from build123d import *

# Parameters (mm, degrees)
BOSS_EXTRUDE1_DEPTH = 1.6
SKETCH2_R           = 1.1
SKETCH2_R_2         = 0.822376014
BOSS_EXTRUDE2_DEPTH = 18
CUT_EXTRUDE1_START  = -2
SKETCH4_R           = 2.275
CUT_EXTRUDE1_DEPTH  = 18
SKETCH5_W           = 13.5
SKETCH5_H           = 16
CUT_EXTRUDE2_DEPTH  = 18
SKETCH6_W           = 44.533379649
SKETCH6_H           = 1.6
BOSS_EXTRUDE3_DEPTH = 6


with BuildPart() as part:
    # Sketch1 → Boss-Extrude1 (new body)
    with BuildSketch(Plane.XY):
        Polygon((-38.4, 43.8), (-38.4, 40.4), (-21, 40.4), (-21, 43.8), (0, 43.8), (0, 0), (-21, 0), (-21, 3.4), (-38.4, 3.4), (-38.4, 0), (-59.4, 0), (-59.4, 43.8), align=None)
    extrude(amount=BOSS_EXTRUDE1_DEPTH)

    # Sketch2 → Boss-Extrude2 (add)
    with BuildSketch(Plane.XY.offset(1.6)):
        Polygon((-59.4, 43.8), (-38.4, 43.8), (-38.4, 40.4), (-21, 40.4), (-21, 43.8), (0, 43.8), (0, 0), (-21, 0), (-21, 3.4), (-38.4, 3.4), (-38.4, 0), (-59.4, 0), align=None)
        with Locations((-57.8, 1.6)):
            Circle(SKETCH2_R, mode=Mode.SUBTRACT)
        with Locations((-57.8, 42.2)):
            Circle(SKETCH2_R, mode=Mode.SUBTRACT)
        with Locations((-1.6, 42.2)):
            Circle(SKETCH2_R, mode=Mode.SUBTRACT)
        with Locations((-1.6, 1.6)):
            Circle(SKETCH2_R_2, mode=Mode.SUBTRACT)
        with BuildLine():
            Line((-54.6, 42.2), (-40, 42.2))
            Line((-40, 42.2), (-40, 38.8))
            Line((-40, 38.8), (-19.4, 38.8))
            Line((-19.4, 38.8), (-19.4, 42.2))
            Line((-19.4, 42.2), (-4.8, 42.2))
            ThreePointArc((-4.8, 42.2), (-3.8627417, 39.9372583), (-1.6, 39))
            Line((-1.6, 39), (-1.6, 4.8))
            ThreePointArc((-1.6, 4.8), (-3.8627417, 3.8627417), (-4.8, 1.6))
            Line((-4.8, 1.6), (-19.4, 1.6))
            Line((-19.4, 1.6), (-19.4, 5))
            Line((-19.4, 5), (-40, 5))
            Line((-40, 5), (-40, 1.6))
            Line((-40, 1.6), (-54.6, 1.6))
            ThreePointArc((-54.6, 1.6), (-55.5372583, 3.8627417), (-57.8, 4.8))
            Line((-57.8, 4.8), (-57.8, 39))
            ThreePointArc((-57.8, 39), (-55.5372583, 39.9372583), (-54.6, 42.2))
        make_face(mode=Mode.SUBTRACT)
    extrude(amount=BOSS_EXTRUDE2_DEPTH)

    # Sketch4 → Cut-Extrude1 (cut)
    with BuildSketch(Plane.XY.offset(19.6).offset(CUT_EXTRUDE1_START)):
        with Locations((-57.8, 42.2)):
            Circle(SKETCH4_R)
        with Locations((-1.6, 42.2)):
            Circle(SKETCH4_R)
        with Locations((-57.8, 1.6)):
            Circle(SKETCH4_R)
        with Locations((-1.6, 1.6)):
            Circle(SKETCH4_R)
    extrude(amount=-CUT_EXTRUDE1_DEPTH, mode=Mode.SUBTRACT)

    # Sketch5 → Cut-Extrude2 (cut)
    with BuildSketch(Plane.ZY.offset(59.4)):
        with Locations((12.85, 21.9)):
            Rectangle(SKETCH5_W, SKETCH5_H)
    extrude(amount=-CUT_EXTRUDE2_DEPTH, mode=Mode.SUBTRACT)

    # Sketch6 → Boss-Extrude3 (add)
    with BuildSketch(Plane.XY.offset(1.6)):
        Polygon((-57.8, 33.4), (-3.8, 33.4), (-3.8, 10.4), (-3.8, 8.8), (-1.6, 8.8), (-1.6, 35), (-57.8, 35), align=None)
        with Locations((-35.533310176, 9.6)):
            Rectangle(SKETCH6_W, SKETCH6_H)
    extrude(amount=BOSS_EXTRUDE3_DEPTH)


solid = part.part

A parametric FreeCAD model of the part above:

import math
import FreeCAD as App
import Part
import Sketcher
from FreeCAD import Vector


def add_polygon(sketch, points):
    """Adds a closed chain of lines whose ends are joined by coincident constraints."""
    first, n = sketch.GeometryCount, len(points)
    for a, b in zip(points, points[1:] + points[:1]):
        sketch.addGeometry(Part.LineSegment(App.Vector(*a, 0), App.Vector(*b, 0)), False)
    for i in range(n):
        sketch.addConstraint(Sketcher.Constraint("Coincident", first + i, 2, first + (i + 1) % n, 1))

doc = App.newDocument("Part")
body = doc.addObject("PartDesign::Body", "Body")

# Sketch on XY plane
sketch1 = doc.addObject("Sketcher::SketchObject", "Sketch")
body.addObject(sketch1)
sketch1.AttachmentSupport = (doc.XY_Plane, [""])
sketch1.MapMode = "FlatFace"
add_polygon(sketch1, [(-38.4, 40.4), (-38.4, 43.8), (-59.4, 43.8), (-59.4, 0), (-38.4, 0), (-38.4, 3.4), (-21, 3.4), (-21, 0), (0, 0), (0, 43.8), (-21, 43.8), (-21, 40.4)])  # lines 0-11
sketch1.addConstraint([
    Sketcher.Constraint("Vertical", 0),
    Sketcher.Constraint("Horizontal", 1),
    Sketcher.Constraint("Vertical", 2),
    Sketcher.Constraint("Horizontal", 3),
    Sketcher.Constraint("Vertical", 4),
    Sketcher.Constraint("Horizontal", 5),
    Sketcher.Constraint("Vertical", 6),
    Sketcher.Constraint("Horizontal", 7),
    Sketcher.Constraint("Vertical", 8),
    Sketcher.Constraint("Horizontal", 9),
    Sketcher.Constraint("Vertical", 10),
    Sketcher.Constraint("Horizontal", 11),
    Sketcher.Constraint("Coincident", 7, 2, -1, 1),
    Sketcher.Constraint("PointOnObject", 2, 2, -1),
    Sketcher.Constraint("Horizontal", 1, 2, 8, 2),
    Sketcher.Constraint("Vertical", 0, 2, 3, 2),
    Sketcher.Constraint("Vertical", 6, 2, 9, 2),
    Sketcher.Constraint("Equal", 3, 7),
    Sketcher.Constraint("Equal", 0, 4),
    Sketcher.Constraint("DistanceX", 1, 2, 1, 1, 21.0),
    Sketcher.Constraint("DistanceX", 5, 1, 5, 2, 17.4),
    Sketcher.Constraint("DistanceY", 0, 1, 0, 2, 3.4),
    Sketcher.Constraint("DistanceY", 2, 2, 2, 1, 43.8),
])
pad1 = doc.addObject("PartDesign::Pad", "Pad")
body.addObject(pad1)
pad1.Profile = sketch1
pad1.Length = 1.6

# Sketch on XY plane
sketch2 = doc.addObject("Sketcher::SketchObject", "Sketch001")
body.addObject(sketch2)
sketch2.AttachmentSupport = (doc.XY_Plane, [""])
sketch2.MapMode = "FlatFace"
sketch2.AttachmentOffset = App.Placement(Vector(0, 0, 1.6), App.Rotation())
add_polygon(sketch2, [(-38.4, 43.8), (-59.4, 43.8), (-59.4, 0), (-38.4, 0), (-38.4, 3.4), (-21, 3.4), (-21, 0), (0, 0), (0, 43.8), (-21, 43.8), (-21, 40.4), (-38.4, 40.4)])  # lines 0-11
sketch2.addGeometry(Part.Circle(Vector(-1.6, 1.6, 0), Vector(0, 0, 1), 0.8), False)  # 12
sketch2.addGeometry(Part.Circle(Vector(-57.8, 1.6, 0), Vector(0, 0, 1), 1.1), False)  # 13
sketch2.addGeometry(Part.LineSegment(Vector(-54.6, 42.2, 0), Vector(-40, 42.2, 0)), False)  # 14
sketch2.addGeometry(Part.LineSegment(Vector(-40, 42.2, 0), Vector(-40, 38.8, 0)), False)  # 15
sketch2.addGeometry(Part.LineSegment(Vector(-40, 38.8, 0), Vector(-19.4, 38.8, 0)), False)  # 16
sketch2.addGeometry(Part.LineSegment(Vector(-19.4, 38.8, 0), Vector(-19.4, 42.2, 0)), False)  # 17
sketch2.addGeometry(Part.LineSegment(Vector(-19.4, 42.2, 0), Vector(-4.8, 42.2, 0)), False)  # 18
sketch2.addGeometry(Part.ArcOfCircle(Part.Circle(Vector(-1.6, 42.2, 0), Vector(0, 0, 1), 3.2), math.radians(180), math.radians(270)), False)  # 19
sketch2.addGeometry(Part.LineSegment(Vector(-1.6, 39, 0), Vector(-1.6, 4.8, 0)), False)  # 20
sketch2.addGeometry(Part.ArcOfCircle(Part.Circle(Vector(-1.6, 1.6, 0), Vector(0, 0, 1), 3.2), math.radians(90), math.radians(180)), False)  # 21
sketch2.addGeometry(Part.LineSegment(Vector(-4.8, 1.6, 0), Vector(-19.4, 1.6, 0)), False)  # 22
sketch2.addGeometry(Part.LineSegment(Vector(-19.4, 1.6, 0), Vector(-19.4, 5, 0)), False)  # 23
sketch2.addGeometry(Part.LineSegment(Vector(-19.4, 5, 0), Vector(-40, 5, 0)), False)  # 24
sketch2.addGeometry(Part.LineSegment(Vector(-40, 5, 0), Vector(-40, 1.6, 0)), False)  # 25
sketch2.addGeometry(Part.LineSegment(Vector(-40, 1.6, 0), Vector(-54.6, 1.6, 0)), False)  # 26
sketch2.addGeometry(Part.ArcOfCircle(Part.Circle(Vector(-57.8, 1.6, 0), Vector(0, 0, 1), 3.2), math.radians(0), math.radians(90)), False)  # 27
sketch2.addGeometry(Part.LineSegment(Vector(-57.8, 4.8, 0), Vector(-57.8, 39, 0)), False)  # 28
sketch2.addGeometry(Part.ArcOfCircle(Part.Circle(Vector(-57.8, 42.2, 0), Vector(0, 0, 1), 3.2), math.radians(-90), math.radians(0)), False)  # 29
sketch2.addGeometry(Part.Circle(Vector(-1.6, 42.2, 0), Vector(0, 0, 1), 1.1), False)  # 30
sketch2.addGeometry(Part.Circle(Vector(-57.8, 42.2, 0), Vector(0, 0, 1), 1.1), False)  # 31
sketch2.addConstraint([
    Sketcher.Constraint("Coincident", 14, 2, 15, 1),
    Sketcher.Constraint("Coincident", 15, 2, 16, 1),
    Sketcher.Constraint("Coincident", 16, 2, 17, 1),
    Sketcher.Constraint("Coincident", 17, 2, 18, 1),
    Sketcher.Constraint("Coincident", 18, 2, 19, 1),
    Sketcher.Constraint("Coincident", 19, 2, 20, 1),
    Sketcher.Constraint("Coincident", 20, 2, 21, 1),
    Sketcher.Constraint("Coincident", 21, 2, 22, 1),
    Sketcher.Constraint("Coincident", 22, 2, 23, 1),
    Sketcher.Constraint("Coincident", 23, 2, 24, 1),
    Sketcher.Constraint("Coincident", 24, 2, 25, 1),
    Sketcher.Constraint("Coincident", 25, 2, 26, 1),
    Sketcher.Constraint("Coincident", 26, 2, 27, 1),
    Sketcher.Constraint("Coincident", 27, 2, 28, 1),
    Sketcher.Constraint("Coincident", 28, 2, 29, 1),
    Sketcher.Constraint("Coincident", 29, 2, 14, 1),
    Sketcher.Constraint("Horizontal", 0),
    Sketcher.Constraint("Vertical", 1),
    Sketcher.Constraint("Horizontal", 2),
    Sketcher.Constraint("Vertical", 3),
    Sketcher.Constraint("Horizontal", 4),
    Sketcher.Constraint("Vertical", 5),
    Sketcher.Constraint("Horizontal", 6),
    Sketcher.Constraint("Vertical", 7),
    Sketcher.Constraint("Horizontal", 8),
    Sketcher.Constraint("Vertical", 9),
    Sketcher.Constraint("Horizontal", 10),
    Sketcher.Constraint("Vertical", 11),
    Sketcher.Constraint("Horizontal", 14),
    Sketcher.Constraint("Vertical", 15),
    Sketcher.Constraint("Horizontal", 16),
    Sketcher.Constraint("Vertical", 17),
    Sketcher.Constraint("Horizontal", 18),
    Sketcher.Constraint("Vertical", 20),
    Sketcher.Constraint("Horizontal", 22),
    Sketcher.Constraint("Vertical", 23),
    Sketcher.Constraint("Horizontal", 24),
    Sketcher.Constraint("Vertical", 25),
    Sketcher.Constraint("Horizontal", 26),
    Sketcher.Constraint("Vertical", 28),
    Sketcher.Constraint("Coincident", 6, 2, -1, 1),
    Sketcher.Constraint("Coincident", 21, 3, 12, 3),
    Sketcher.Constraint("Coincident", 27, 3, 13, 3),
    Sketcher.Constraint("Coincident", 30, 3, 19, 3),
    Sketcher.Constraint("Coincident", 31, 3, 29, 3),
    Sketcher.Constraint("Equal", 19, 21),
    Sketcher.Constraint("Equal", 21, 27),
    Sketcher.Constraint("Equal", 27, 29),
    Sketcher.Constraint("Equal", 13, 30),
    Sketcher.Constraint("Equal", 30, 31),
    Sketcher.Constraint("PointOnObject", 1, 2, -1),
    Sketcher.Constraint("Horizontal", 12, 3, 13, 3),
    Sketcher.Constraint("Horizontal", 19, 3, 29, 3),
    Sketcher.Constraint("Horizontal", 0, 2, 7, 2),
    Sketcher.Constraint("Horizontal", 31, 3, 14, 2),
    Sketcher.Constraint("Horizontal", 14, 2, 17, 2),
    Sketcher.Constraint("Horizontal", 27, 3, 21, 2),
    Sketcher.Constraint("Horizontal", 22, 2, 25, 2),
    Sketcher.Constraint("Vertical", 12, 3, 19, 3),
    Sketcher.Constraint("Vertical", 27, 3, 29, 3),
    Sketcher.Constraint("Vertical", 5, 2, 8, 2),
    Sketcher.Constraint("Vertical", 3, 2, 10, 2),
    Sketcher.Constraint("Vertical", 30, 3, 19, 2),
    Sketcher.Constraint("Vertical", 17, 2, 22, 2),
    Sketcher.Constraint("Vertical", 15, 2, 24, 2),
    Sketcher.Constraint("Vertical", 31, 3, 27, 2),
    Sketcher.Constraint("Equal", 2, 6),
    Sketcher.Constraint("Equal", 14, 18),
    Sketcher.Constraint("Equal", 5, 9),
    Sketcher.Constraint("Equal", 11, 15),
    Sketcher.Constraint("Equal", 17, 23),
    Sketcher.Constraint("Diameter", 13, 2.2),
    Sketcher.Constraint("Radius", 19, 3.2),
    Sketcher.Constraint("DistanceX", 0, 2, 0, 1, 21.0),
    Sketcher.Constraint("DistanceX", 4, 1, 4, 2, 17.4),
    Sketcher.Constraint("DistanceX", 14, 1, 14, 2, 14.6),
    Sketcher.Constraint("DistanceX", 16, 1, 16, 2, 20.6),
    Sketcher.Constraint("DistanceY", 1, 2, 1, 1, 43.8),
    Sketcher.Constraint("DistanceY", 3, 1, 3, 2, 3.4),
    Sketcher.Constraint("DistanceY", 20, 2, 20, 1, 34.2),
    Sketcher.Constraint("DistanceX", 14, 2, -1, 1, 40.0),
    Sketcher.Constraint("DistanceY", -1, 1, 19, 2, 39.0),
    Sketcher.Constraint("Diameter", 12, 1.644752),
])
pad2 = doc.addObject("PartDesign::Pad", "Pad001")
body.addObject(pad2)
pad2.Profile = sketch2
pad2.Length = 18

# Sketch on XY plane
sketch3 = doc.addObject("Sketcher::SketchObject", "Sketch002")
body.addObject(sketch3)
sketch3.AttachmentSupport = (doc.XY_Plane, [""])
sketch3.MapMode = "FlatFace"
sketch3.AttachmentOffset = App.Placement(Vector(0, 0, 17.6), App.Rotation())
sketch3.addGeometry([
    Part.Circle(Vector(-57.8, 42.2, 0), Vector(0, 0, 1), 2.3),
    Part.Circle(Vector(-1.6, 42.2, 0), Vector(0, 0, 1), 2.3),
    Part.Circle(Vector(-57.8, 1.6, 0), Vector(0, 0, 1), 2.3),
    Part.Circle(Vector(-1.6, 1.6, 0), Vector(0, 0, 1), 2.3),
], False)
sketch3.addConstraint([
    Sketcher.Constraint("Equal", 0, 1),
    Sketcher.Constraint("Equal", 1, 2),
    Sketcher.Constraint("Equal", 2, 3),
    Sketcher.Constraint("Horizontal", 0, 3, 1, 3),
    Sketcher.Constraint("Horizontal", 2, 3, 3, 3),
    Sketcher.Constraint("Vertical", 0, 3, 2, 3),
    Sketcher.Constraint("Vertical", 1, 3, 3, 3),
    Sketcher.Constraint("Diameter", 0, 4.55),
    Sketcher.Constraint("DistanceX", 0, 3, -1, 1, 57.8),
    Sketcher.Constraint("DistanceY", -1, 1, 0, 3, 42.2),
    Sketcher.Constraint("DistanceX", 1, 3, -1, 1, 1.6),
    Sketcher.Constraint("DistanceY", -1, 1, 2, 3, 1.6),
])
pocket1 = doc.addObject("PartDesign::Pocket", "Pocket")
body.addObject(pocket1)
pocket1.Profile = sketch3
pocket1.Length = 18

# Sketch on YZ plane
sketch4 = doc.addObject("Sketcher::SketchObject", "Sketch003")
body.addObject(sketch4)
sketch4.AttachmentSupport = (doc.YZ_Plane, [""])
sketch4.MapMode = "FlatFace"
sketch4.AttachmentOffset = App.Placement(Vector(0, 0, -59.4), App.Rotation())
add_polygon(sketch4, [(30, 6), (14, 6), (14, 20), (30, 20)])  # lines 0-3
sketch4.addConstraint([
    Sketcher.Constraint("Horizontal", 0),
    Sketcher.Constraint("Vertical", 1),
    Sketcher.Constraint("Horizontal", 2),
    Sketcher.Constraint("Vertical", 3),
    Sketcher.Constraint("DistanceX", 0, 2, 0, 1, 16.0),
    Sketcher.Constraint("DistanceY", 1, 1, 1, 2, 13.5),
    Sketcher.Constraint("DistanceX", -1, 1, 0, 2, 13.9),
    Sketcher.Constraint("DistanceY", -1, 1, 0, 2, 6.1),
])
pocket2 = doc.addObject("PartDesign::Pocket", "Pocket001")
body.addObject(pocket2)
pocket2.Profile = sketch4
pocket2.Length = 18
pocket2.Reversed = True

# Sketch on XY plane
sketch5 = doc.addObject("Sketcher::SketchObject", "Sketch004")
body.addObject(sketch5)
sketch5.AttachmentSupport = (doc.XY_Plane, [""])
sketch5.MapMode = "FlatFace"
sketch5.AttachmentOffset = App.Placement(Vector(0, 0, 1.6), App.Rotation())
add_polygon(sketch5, [(-57.8, 33.4), (-3.8, 33.4), (-3.8, 8.8), (-1.6, 8.8), (-1.6, 35), (-57.8, 35)])  # lines 0-5
add_polygon(sketch5, [(-57.8, 10.4), (-57.8, 8.8), (-13.3, 8.8), (-13.3, 10.4)])  # lines 6-9
sketch5.addConstraint([
    Sketcher.Constraint("Horizontal", 0),
    Sketcher.Constraint("Vertical", 1),
    Sketcher.Constraint("Horizontal", 2),
    Sketcher.Constraint("Vertical", 3),
    Sketcher.Constraint("Horizontal", 4),
    Sketcher.Constraint("Vertical", 5),
    Sketcher.Constraint("Vertical", 6),
    Sketcher.Constraint("Horizontal", 7),
    Sketcher.Constraint("Vertical", 8),
    Sketcher.Constraint("Horizontal", 9),
    Sketcher.Constraint("Horizontal", 2, 2, 6, 2),
    Sketcher.Constraint("Vertical", 5, 2, 6, 2),
    Sketcher.Constraint("Equal", 5, 6),
    Sketcher.Constraint("DistanceX", 0, 1, 0, 2, 54.0),
    Sketcher.Constraint("DistanceX", 2, 1, 2, 2, 2.2),
    Sketcher.Constraint("DistanceY", 1, 2, 1, 1, 24.6),
    Sketcher.Constraint("DistanceY", 3, 1, 3, 2, 26.2),
    Sketcher.Constraint("DistanceY", -1, 1, 3, 2, 35.0),
    Sketcher.Constraint("DistanceX", 0, 2, -1, 1, 3.8),
    Sketcher.Constraint("DistanceX", 7, 1, 7, 2, 44.53338),
])
pad3 = doc.addObject("PartDesign::Pad", "Pad002")
body.addObject(pad3)
pad3.Profile = sketch5
pad3.Length = 6

doc.recompute()
